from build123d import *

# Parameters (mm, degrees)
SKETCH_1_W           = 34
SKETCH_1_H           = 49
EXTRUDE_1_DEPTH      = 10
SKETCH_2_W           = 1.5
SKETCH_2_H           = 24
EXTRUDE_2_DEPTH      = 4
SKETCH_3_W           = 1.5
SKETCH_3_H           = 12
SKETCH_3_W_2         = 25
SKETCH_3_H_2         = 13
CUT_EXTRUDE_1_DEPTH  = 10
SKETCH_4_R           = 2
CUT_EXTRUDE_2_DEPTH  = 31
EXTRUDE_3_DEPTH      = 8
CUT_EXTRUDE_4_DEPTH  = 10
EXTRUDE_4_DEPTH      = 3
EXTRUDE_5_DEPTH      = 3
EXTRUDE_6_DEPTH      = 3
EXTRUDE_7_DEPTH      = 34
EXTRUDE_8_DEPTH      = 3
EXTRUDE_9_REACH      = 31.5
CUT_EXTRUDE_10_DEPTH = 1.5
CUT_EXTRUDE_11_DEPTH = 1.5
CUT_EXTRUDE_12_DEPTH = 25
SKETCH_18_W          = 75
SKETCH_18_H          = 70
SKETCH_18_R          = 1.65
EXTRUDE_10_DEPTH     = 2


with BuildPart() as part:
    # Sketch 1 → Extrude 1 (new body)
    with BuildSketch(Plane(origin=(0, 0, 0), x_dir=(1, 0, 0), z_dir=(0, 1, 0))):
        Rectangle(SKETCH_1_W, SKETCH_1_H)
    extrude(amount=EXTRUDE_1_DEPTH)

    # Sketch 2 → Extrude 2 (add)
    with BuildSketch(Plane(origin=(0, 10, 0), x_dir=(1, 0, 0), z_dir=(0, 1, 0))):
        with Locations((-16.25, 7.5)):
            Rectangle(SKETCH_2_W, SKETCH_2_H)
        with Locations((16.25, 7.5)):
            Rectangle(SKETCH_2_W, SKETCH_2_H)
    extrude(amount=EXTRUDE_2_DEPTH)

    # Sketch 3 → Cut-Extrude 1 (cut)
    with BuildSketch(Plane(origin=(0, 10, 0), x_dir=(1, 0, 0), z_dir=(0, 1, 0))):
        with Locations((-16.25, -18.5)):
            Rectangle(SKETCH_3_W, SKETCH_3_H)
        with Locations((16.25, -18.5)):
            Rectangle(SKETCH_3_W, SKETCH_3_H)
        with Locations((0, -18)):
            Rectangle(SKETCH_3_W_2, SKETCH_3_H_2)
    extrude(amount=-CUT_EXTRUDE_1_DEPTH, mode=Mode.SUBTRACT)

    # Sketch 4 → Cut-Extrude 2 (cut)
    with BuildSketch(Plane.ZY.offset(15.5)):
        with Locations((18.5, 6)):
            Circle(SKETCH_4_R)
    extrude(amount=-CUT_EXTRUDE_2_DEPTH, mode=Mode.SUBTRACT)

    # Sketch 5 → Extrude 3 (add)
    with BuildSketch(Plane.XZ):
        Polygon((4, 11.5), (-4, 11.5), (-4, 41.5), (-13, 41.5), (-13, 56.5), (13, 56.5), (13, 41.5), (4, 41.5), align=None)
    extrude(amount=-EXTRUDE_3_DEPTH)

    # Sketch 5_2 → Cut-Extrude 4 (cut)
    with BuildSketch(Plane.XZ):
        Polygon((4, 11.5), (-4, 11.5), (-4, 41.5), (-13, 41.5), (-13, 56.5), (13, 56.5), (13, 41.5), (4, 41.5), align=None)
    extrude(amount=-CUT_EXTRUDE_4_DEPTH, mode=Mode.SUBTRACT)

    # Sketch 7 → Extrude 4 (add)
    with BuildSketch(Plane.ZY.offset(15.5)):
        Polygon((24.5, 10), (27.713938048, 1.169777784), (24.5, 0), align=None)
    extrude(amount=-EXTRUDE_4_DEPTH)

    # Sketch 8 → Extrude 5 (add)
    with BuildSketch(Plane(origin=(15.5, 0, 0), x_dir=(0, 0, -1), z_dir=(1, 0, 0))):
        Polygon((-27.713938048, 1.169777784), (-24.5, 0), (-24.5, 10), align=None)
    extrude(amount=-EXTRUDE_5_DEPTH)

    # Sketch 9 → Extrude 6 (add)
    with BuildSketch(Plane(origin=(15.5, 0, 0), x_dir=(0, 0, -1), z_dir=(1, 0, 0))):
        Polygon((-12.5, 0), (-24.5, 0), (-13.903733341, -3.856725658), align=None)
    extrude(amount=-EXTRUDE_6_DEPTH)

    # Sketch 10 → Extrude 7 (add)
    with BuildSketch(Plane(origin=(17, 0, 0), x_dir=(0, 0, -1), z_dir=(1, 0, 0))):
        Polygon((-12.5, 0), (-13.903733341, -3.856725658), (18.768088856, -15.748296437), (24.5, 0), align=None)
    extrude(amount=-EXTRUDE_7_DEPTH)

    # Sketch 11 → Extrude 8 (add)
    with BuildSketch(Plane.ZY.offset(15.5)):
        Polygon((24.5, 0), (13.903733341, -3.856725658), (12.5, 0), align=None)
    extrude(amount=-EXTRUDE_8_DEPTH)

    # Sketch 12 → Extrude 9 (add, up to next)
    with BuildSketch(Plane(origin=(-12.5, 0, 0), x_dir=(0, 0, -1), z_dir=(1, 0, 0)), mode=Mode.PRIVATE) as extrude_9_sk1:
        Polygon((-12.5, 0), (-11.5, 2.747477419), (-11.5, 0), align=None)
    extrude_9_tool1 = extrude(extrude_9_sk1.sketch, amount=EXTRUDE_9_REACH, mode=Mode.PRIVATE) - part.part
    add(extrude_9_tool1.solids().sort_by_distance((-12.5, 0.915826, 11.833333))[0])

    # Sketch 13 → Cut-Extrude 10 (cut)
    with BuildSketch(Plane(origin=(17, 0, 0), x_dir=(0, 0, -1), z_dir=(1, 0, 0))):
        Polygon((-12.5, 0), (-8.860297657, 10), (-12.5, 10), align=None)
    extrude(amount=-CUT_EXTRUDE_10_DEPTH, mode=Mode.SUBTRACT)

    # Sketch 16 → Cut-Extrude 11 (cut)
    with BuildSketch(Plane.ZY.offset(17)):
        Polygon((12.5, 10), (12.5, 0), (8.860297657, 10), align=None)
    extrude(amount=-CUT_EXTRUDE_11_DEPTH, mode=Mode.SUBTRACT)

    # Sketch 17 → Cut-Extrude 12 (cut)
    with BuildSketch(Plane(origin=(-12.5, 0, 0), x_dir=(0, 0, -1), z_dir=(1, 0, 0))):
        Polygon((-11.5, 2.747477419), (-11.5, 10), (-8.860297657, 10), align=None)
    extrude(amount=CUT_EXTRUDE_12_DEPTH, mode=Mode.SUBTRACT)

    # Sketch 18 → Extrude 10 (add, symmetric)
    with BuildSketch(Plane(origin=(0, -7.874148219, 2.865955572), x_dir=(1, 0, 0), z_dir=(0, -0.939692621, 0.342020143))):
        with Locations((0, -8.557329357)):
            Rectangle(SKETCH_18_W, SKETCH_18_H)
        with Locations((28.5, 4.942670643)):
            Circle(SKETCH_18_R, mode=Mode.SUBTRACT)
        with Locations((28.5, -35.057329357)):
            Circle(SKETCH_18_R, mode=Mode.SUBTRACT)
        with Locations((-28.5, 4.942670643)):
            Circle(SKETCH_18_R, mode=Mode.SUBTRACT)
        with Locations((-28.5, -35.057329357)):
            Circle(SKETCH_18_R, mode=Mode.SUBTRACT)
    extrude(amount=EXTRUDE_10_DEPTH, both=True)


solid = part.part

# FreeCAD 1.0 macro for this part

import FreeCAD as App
import Part
import Sketcher
Q = App.Units.Quantity

doc = App.newDocument("Part")
body = doc.addObject("PartDesign::Body", "Body")

# Sketch on XZ plane
sketch1 = doc.addObject("Sketcher::SketchObject", "Sketch")
body.addObject(sketch1)
sketch1.AttachmentSupport = (doc.XZ_Plane, [""])
sketch1.MapMode = "FlatFace"
sketch1.addGeometry(Part.LineSegment(App.Vector(-17, -24, 0), App.Vector(-17, 24, 0)), False)
sketch1.addGeometry(Part.LineSegment(App.Vector(-17, 24, 0), App.Vector(17, 24, 0)), False)
sketch1.addGeometry(Part.LineSegment(App.Vector(17, 24, 0), App.Vector(17, -24, 0)), False)
sketch1.addGeometry(Part.LineSegment(App.Vector(17, -24, 0), App.Vector(-17, -24, 0)), False)
sketch1.addConstraint(Sketcher.Constraint("Coincident", 0, 2, 1, 1))
sketch1.addConstraint(Sketcher.Constraint("Coincident", 1, 2, 2, 1))
sketch1.addConstraint(Sketcher.Constraint("Coincident", 2, 2, 3, 1))
sketch1.addConstraint(Sketcher.Constraint("Coincident", 3, 2, 0, 1))
sketch1.addConstraint(Sketcher.Constraint("Vertical", 0))
sketch1.addConstraint(Sketcher.Constraint("Horizontal", 1))
sketch1.addConstraint(Sketcher.Constraint("Vertical", 2))
sketch1.addConstraint(Sketcher.Constraint("Horizontal", 3))
sketch1.addConstraint(Sketcher.Constraint("Symmetric", 0, 2, 2, 2, -1, 1))
sketch1.addConstraint(Sketcher.Constraint("DistanceX", 1, 1, 1, 2, Q("34 mm")))
sketch1.addConstraint(Sketcher.Constraint("DistanceY", 0, 1, 0, 2, Q("49 mm")))
pad1 = doc.addObject("PartDesign::Pad", "Pad")
body.addObject(pad1)
pad1.Profile = sketch1
pad1.Length = 10
pad1.Reversed = True

# Sketch on XZ plane
sketch2 = doc.addObject("Sketcher::SketchObject", "Sketch001")
body.addObject(sketch2)
sketch2.AttachmentSupport = (doc.XZ_Plane, [""])
sketch2.MapMode = "FlatFace"
sketch2.AttachmentOffset = App.Placement(App.Vector(0, 0, -10), App.Rotation())
sketch2.addGeometry(Part.LineSegment(App.Vector(-17, -19.5, 0), App.Vector(-17, 4.5, 0)), False)
sketch2.addGeometry(Part.LineSegment(App.Vector(-17, 4.5, 0), App.Vector(-15.5, 4.5, 0)), False)
sketch2.addGeometry(Part.LineSegment(App.Vector(-15.5, 4.5, 0), App.Vector(-15.5, -19.5, 0)), False)
sketch2.addGeometry(Part.LineSegment(App.Vector(-15.5, -19.5, 0), App.Vector(-17, -19.5, 0)), False)
sketch2.addGeometry(Part.LineSegment(App.Vector(15.5, -19.5, 0), App.Vector(15.5, 4.5, 0)), False)
sketch2.addGeometry(Part.LineSegment(App.Vector(15.5, 4.5, 0), App.Vector(17, 4.5, 0)), False)
sketch2.addGeometry(Part.LineSegment(App.Vector(17, 4.5, 0), App.Vector(17, -19.5, 0)), False)
sketch2.addGeometry(Part.LineSegment(App.Vector(17, -19.5, 0), App.Vector(15.5, -19.5, 0)), False)
sketch2.addConstraint(Sketcher.Constraint("Coincident", 0, 2, 1, 1))
sketch2.addConstraint(Sketcher.Constraint("Coincident", 1, 2, 2, 1))
sketch2.addConstraint(Sketcher.Constraint("Coincident", 2, 2, 3, 1))
sketch2.addConstraint(Sketcher.Constraint("Coincident", 3, 2, 0, 1))
sketch2.addConstraint(Sketcher.Constraint("Coincident", 4, 2, 5, 1))
sketch2.addConstraint(Sketcher.Constraint("Coincident", 5, 2, 6, 1))
sketch2.addConstraint(Sketcher.Constraint("Coincident", 6, 2, 7, 1))
sketch2.addConstraint(Sketcher.Constraint("Coincident", 7, 2, 4, 1))
sketch2.addConstraint(Sketcher.Constraint("Vertical", 0))
sketch2.addConstraint(Sketcher.Constraint("Horizontal", 1))
sketch2.addConstraint(Sketcher.Constraint("Vertical", 2))
sketch2.addConstraint(Sketcher.Constraint("Horizontal", 3))
sketch2.addConstraint(Sketcher.Constraint("Vertical", 4))
sketch2.addConstraint(Sketcher.Constraint("Horizontal", 5))
sketch2.addConstraint(Sketcher.Constraint("Vertical", 6))
sketch2.addConstraint(Sketcher.Constraint("Horizontal", 7))
sketch2.addConstraint(Sketcher.Constraint("Symmetric", 1, 2, 4, 2, -2))
sketch2.addConstraint(Sketcher.Constraint("Symmetric", 3, 2, 6, 2, -2))
sketch2.addConstraint(Sketcher.Constraint("DistanceY", 0, 1, 0, 2, Q("24 mm")))
sketch2.addConstraint(Sketcher.Constraint("DistanceX", 1, 1, 1, 2, Q("1.5 mm")))
sketch2.addConstraint(Sketcher.Constraint("DistanceX", 0, 2, -1, 1, Q("17 mm")))
sketch2.addConstraint(Sketcher.Constraint("DistanceY", -1, 1, 0, 2, Q("4.5 mm")))
pad2 = doc.addObject("PartDesign::Pad", "Pad001")
body.addObject(pad2)
pad2.Profile = sketch2
pad2.Length = 4
pad2.Reversed = True

# Sketch on XZ plane
sketch3 = doc.addObject("Sketcher::SketchObject", "Sketch002")
body.addObject(sketch3)
sketch3.AttachmentSupport = (doc.XZ_Plane, [""])
sketch3.MapMode = "FlatFace"
sketch3.AttachmentOffset = App.Placement(App.Vector(0, 0, -10), App.Rotation())
sketch3.addGeometry(Part.LineSegment(App.Vector(-17, 12.5, 0), App.Vector(-17, 24.5, 0)), False)
sketch3.addGeometry(Part.LineSegment(App.Vector(-17, 24.5, 0), App.Vector(-15.5, 24.5, 0)), False)
sketch3.addGeometry(Part.LineSegment(App.Vector(-15.5, 24.5, 0), App.Vector(-15.5, 12.5, 0)), False)
sketch3.addGeometry(Part.LineSegment(App.Vector(-15.5, 12.5, 0), App.Vector(-17, 12.5, 0)), False)
sketch3.addGeometry(Part.LineSegment(App.Vector(15.5, 12.5, 0), App.Vector(15.5, 24.5, 0)), False)
sketch3.addGeometry(Part.LineSegment(App.Vector(15.5, 24.5, 0), App.Vector(17, 24.5, 0)), False)
sketch3.addGeometry(Part.LineSegment(App.Vector(17, 24.5, 0), App.Vector(17, 12.5, 0)), False)
sketch3.addGeometry(Part.LineSegment(App.Vector(17, 12.5, 0), App.Vector(15.5, 12.5, 0)), False)
sketch3.addGeometry(Part.LineSegment(App.Vector(-12.5, 11.5, 0), App.Vector(-12.5, 24.5, 0)), False)
sketch3.addGeometry(Part.LineSegment(App.Vector(-12.5, 24.5, 0), App.Vector(12.5, 24.5, 0)), False)
sketch3.addGeometry(Part.LineSegment(App.Vector(12.5, 24.5, 0), App.Vector(12.5, 11.5, 0)), False)
sketch3.addGeometry(Part.LineSegment(App.Vector(12.5, 11.5, 0), App.Vector(-12.5, 11.5, 0)), False)
sketch3.addConstraint(Sketcher.Constraint("Coincident", 0, 2, 1, 1))
sketch3.addConstraint(Sketcher.Constraint("Coincident", 1, 2, 2, 1))
sketch3.addConstraint(Sketcher.Constraint("Coincident", 2, 2, 3, 1))
sketch3.addConstraint(Sketcher.Constraint("Coincident", 3, 2, 0, 1))
sketch3.addConstraint(Sketcher.Constraint("Coincident", 4, 2, 5, 1))
sketch3.addConstraint(Sketcher.Constraint("Coincident", 5, 2, 6, 1))
sketch3.addConstraint(Sketcher.Constraint("Coincident", 6, 2, 7, 1))
sketch3.addConstraint(Sketcher.Constraint("Coincident", 7, 2, 4, 1))
sketch3.addConstraint(Sketcher.Constraint("Coincident", 8, 2, 9, 1))
sketch3.addConstraint(Sketcher.Constraint("Coincident", 9, 2, 10, 1))
sketch3.addConstraint(Sketcher.Constraint("Coincident", 10, 2, 11, 1))
sketch3.addConstraint(Sketcher.Constraint("Coincident", 11, 2, 8, 1))
sketch3.addConstraint(Sketcher.Constraint("Vertical", 0))
sketch3.addConstraint(Sketcher.Constraint("Horizontal", 1))
sketch3.addConstraint(Sketcher.Constraint("Vertical", 2))
sketch3.addConstraint(Sketcher.Constraint("Horizontal", 3))
sketch3.addConstraint(Sketcher.Constraint("Vertical", 4))
sketch3.addConstraint(Sketcher.Constraint("Horizontal", 5))
sketch3.addConstraint(Sketcher.Constraint("Vertical", 6))
sketch3.addConstraint(Sketcher.Constraint("Horizontal", 7))
sketch3.addConstraint(Sketcher.Constraint("Vertical", 8))
sketch3.addConstraint(Sketcher.Constraint("Horizontal", 9))
sketch3.addConstraint(Sketcher.Constraint("Vertical", 10))
sketch3.addConstraint(Sketcher.Constraint("Horizontal", 11))
sketch3.addConstraint(Sketcher.Constraint("Symmetric", 1, 2, 4, 2, -2))
sketch3.addConstraint(Sketcher.Constraint("Symmetric", 3, 2, 6, 2, -2))
sketch3.addConstraint(Sketcher.Constraint("Horizontal", 5, 2, 8, 2))
sketch3.addConstraint(Sketcher.Constraint("DistanceX", 9, 1, 9, 2, Q("25 mm")))
sketch3.addConstraint(Sketcher.Constraint("DistanceY", 0, 1, 0, 2, Q("12 mm")))
sketch3.addConstraint(Sketcher.Constraint("DistanceY", 8, 1, 8, 2, Q("13 mm")))
sketch3.addConstraint(Sketcher.Constraint("DistanceX", 1, 1, 1, 2, Q("1.5 mm")))
sketch3.addConstraint(Sketcher.Constraint("DistanceX", 0, 2, -1, 1, Q("17 mm")))
sketch3.addConstraint(Sketcher.Constraint("DistanceX", 1, 2, 8, 2, Q("3 mm")))
sketch3.addConstraint(Sketcher.Constraint("DistanceY", -1, 1, 0, 2, Q("24.5 mm")))
pocket1 = doc.addObject("PartDesign::Pocket", "Pocket")
body.addObject(pocket1)
pocket1.Profile = sketch3
pocket1.Length = 10
pocket1.Reversed = True

# Sketch on YZ plane
sketch4 = doc.addObject("Sketcher::SketchObject", "Sketch003")
body.addObject(sketch4)
sketch4.AttachmentSupport = (doc.YZ_Plane, [""])
sketch4.MapMode = "FlatFace"
sketch4.AttachmentOffset = App.Placement(App.Vector(0, 0, -15.5), App.Rotation())
sketch4.addGeometry(Part.Circle(App.Vector(6, 18.5, 0), App.Vector(0, 0, 1), 2), False)
sketch4.addConstraint(Sketcher.Constraint("Diameter", 0, Q("4 mm")))
sketch4.addConstraint(Sketcher.Constraint("DistanceX", -1, 1, 0, 3, Q("6 mm")))
sketch4.addConstraint(Sketcher.Constraint("DistanceY", -1, 1, 0, 3, Q("18.5 mm")))
pocket2 = doc.addObject("PartDesign::Pocket", "Pocket001")
body.addObject(pocket2)
pocket2.Profile = sketch4
pocket2.Length = 31
pocket2.Reversed = True

# Sketch on XZ plane
sketch5 = doc.addObject("Sketcher::SketchObject", "Sketch004")
body.addObject(sketch5)
sketch5.AttachmentSupport = (doc.XZ_Plane, [""])
sketch5.MapMode = "FlatFace"
sketch5.addGeometry(Part.LineSegment(App.Vector(-4, 12, 0), App.Vector(4, 12, 0)), False)
sketch5.addGeometry(Part.LineSegment(App.Vector(4, 12, 0), App.Vector(4, 42, 0)), False)
sketch5.addGeometry(Part.LineSegment(App.Vector(4, 42, 0), App.Vector(13, 42, 0)), False)
sketch5.addGeometry(Part.LineSegment(App.Vector(13, 42, 0), App.Vector(13, 56, 0)), False)
sketch5.addGeometry(Part.LineSegment(App.Vector(13, 56, 0), App.Vector(-13, 56, 0)), False)
sketch5.addGeometry(Part.LineSegment(App.Vector(-13, 56, 0), App.Vector(-13, 42, 0)), False)
sketch5.addGeometry(Part.LineSegment(App.Vector(-13, 42, 0), App.Vector(-4, 42, 0)), False)
sketch5.addGeometry(Part.LineSegment(App.Vector(-4, 42, 0), App.Vector(-4, 12, 0)), False)
sketch5.addConstraint(Sketcher.Constraint("Coincident", 0, 2, 1, 1))
sketch5.addConstraint(Sketcher.Constraint("Coincident", 1, 2, 2, 1))
sketch5.addConstraint(Sketcher.Constraint("Coincident", 2, 2, 3, 1))
sketch5.addConstraint(Sketcher.Constraint("Coincident", 3, 2, 4, 1))
sketch5.addConstraint(Sketcher.Constraint("Coincident", 4, 2, 5, 1))
sketch5.addConstraint(Sketcher.Constraint("Coincident", 5, 2, 6, 1))
sketch5.addConstraint(Sketcher.Constraint("Coincident", 6, 2, 7, 1))
sketch5.addConstraint(Sketcher.Constraint("Coincident", 7, 2, 0, 1))
sketch5.addConstraint(Sketcher.Constraint("Horizontal", 0))
sketch5.addConstraint(Sketcher.Constraint("Vertical", 1))
sketch5.addConstraint(Sketcher.Constraint("Horizontal", 2))
sketch5.addConstraint(Sketcher.Constraint("Vertical", 3))
sketch5.addConstraint(Sketcher.Constraint("Horizontal", 4))
sketch5.addConstraint(Sketcher.Constraint("Vertical", 5))
sketch5.addConstraint(Sketcher.Constraint("Horizontal", 6))
sketch5.addConstraint(Sketcher.Constraint("Vertical", 7))
sketch5.addConstraint(Sketcher.Constraint("Symmetric", 2, 2, 5, 2, -2))
sketch5.addConstraint(Sketcher.Constraint("Equal", 2, 6))
sketch5.addConstraint(Sketcher.Constraint("DistanceX", 0, 1, 0, 2, Q("8 mm")))
sketch5.addConstraint(Sketcher.Constraint("DistanceX", 2, 1, 2, 2, Q("9 mm")))
sketch5.addConstraint(Sketcher.Constraint("DistanceY", 1, 1, 1, 2, Q("30 mm")))
sketch5.addConstraint(Sketcher.Constraint("DistanceY", 3, 1, 3, 2, Q("15 mm")))
sketch5.addConstraint(Sketcher.Constraint("DistanceY", -1, 1, 0, 2, Q("11.5 mm")))
pad3 = doc.addObject("PartDesign::Pad", "Pad002")
body.addObject(pad3)
pad3.Profile = sketch5
pad3.Length = 8
pad3.Reversed = True

# Sketch on XZ plane
sketch6 = doc.addObject("Sketcher::SketchObject", "Sketch005")
body.addObject(sketch6)
sketch6.AttachmentSupport = (doc.XZ_Plane, [""])
sketch6.MapMode = "FlatFace"
sketch6.addGeometry(Part.LineSegment(App.Vector(-4, 12, 0), App.Vector(4, 12, 0)), False)
sketch6.addGeometry(Part.LineSegment(App.Vector(4, 12, 0), App.Vector(4, 42, 0)), False)
sketch6.addGeometry(Part.LineSegment(App.Vector(4, 42, 0), App.Vector(13, 42, 0)), False)
sketch6.addGeometry(Part.LineSegment(App.Vector(13, 42, 0), App.Vector(13, 56, 0)), False)
sketch6.addGeometry(Part.LineSegment(App.Vector(13, 56, 0), App.Vector(-13, 56, 0)), False)
sketch6.addGeometry(Part.LineSegment(App.Vector(-13, 56, 0), App.Vector(-13, 42, 0)), False)
sketch6.addGeometry(Part.LineSegment(App.Vector(-13, 42, 0), App.Vector(-4, 42, 0)), False)
sketch6.addGeometry(Part.LineSegment(App.Vector(-4, 42, 0), App.Vector(-4, 12, 0)), False)
sketch6.addConstraint(Sketcher.Constraint("Coincident", 0, 2, 1, 1))
sketch6.addConstraint(Sketcher.Constraint("Coincident", 1, 2, 2, 1))
sketch6.addConstraint(Sketcher.Constraint("Coincident", 2, 2, 3, 1))
sketch6.addConstraint(Sketcher.Constraint("Coincident", 3, 2, 4, 1))
sketch6.addConstraint(Sketcher.Constraint("Coincident", 4, 2, 5, 1))
sketch6.addConstraint(Sketcher.Constraint("Coincident", 5, 2, 6, 1))
sketch6.addConstraint(Sketcher.Constraint("Coincident", 6, 2, 7, 1))
sketch6.addConstraint(Sketcher.Constraint("Coincident", 7, 2, 0, 1))
sketch6.addConstraint(Sketcher.Constraint("Horizontal", 0))
sketch6.addConstraint(Sketcher.Constraint("Vertical", 1))
sketch6.addConstraint(Sketcher.Constraint("Horizontal", 2))
sketch6.addConstraint(Sketcher.Constraint("Vertical", 3))
sketch6.addConstraint(Sketcher.Constraint("Horizontal", 4))
sketch6.addConstraint(Sketcher.Constraint("Vertical", 5))
sketch6.addConstraint(Sketcher.Constraint("Horizontal", 6))
sketch6.addConstraint(Sketcher.Constraint("Vertical", 7))
sketch6.addConstraint(Sketcher.Constraint("Symmetric", 2, 2, 5, 2, -2))
sketch6.addConstraint(Sketcher.Constraint("Equal", 2, 6))
sketch6.addConstraint(Sketcher.Constraint("DistanceX", 0, 1, 0, 2, Q("8 mm")))
sketch6.addConstraint(Sketcher.Constraint("DistanceX", 2, 1, 2, 2, Q("9 mm")))
sketch6.addConstraint(Sketcher.Constraint("DistanceY", 1, 1, 1, 2, Q("30 mm")))
sketch6.addConstraint(Sketcher.Constraint("DistanceY", 3, 1, 3, 2, Q("15 mm")))
sketch6.addConstraint(Sketcher.Constraint("DistanceY", -1, 1, 0, 2, Q("11.5 mm")))
pocket3 = doc.addObject("PartDesign::Pocket", "Pocket002")
body.addObject(pocket3)
pocket3.Profile = sketch6
pocket3.Length = 10

# Sketch on YZ plane
sketch7 = doc.addObject("Sketcher::SketchObject", "Sketch006")
body.addObject(sketch7)
sketch7.AttachmentSupport = (doc.YZ_Plane, [""])
sketch7.MapMode = "FlatFace"
sketch7.AttachmentOffset = App.Placement(App.Vector(0, 0, -15.5), App.Rotation())
sketch7.addGeometry(Part.LineSegment(App.Vector(1.2, 27.7, 0), App.Vector(10, 24.5, 0)), False)
sketch7.addGeometry(Part.LineSegment(App.Vector(10, 24.5, 0), App.Vector(0, 24.5, 0)), False)
sketch7.addGeometry(Part.LineSegment(App.Vector(0, 24.5, 0), App.Vector(1.2, 27.7, 0)), False)
sketch7.addConstraint(Sketcher.Constraint("Coincident", 0, 2, 1, 1))
sketch7.addConstraint(Sketcher.Constraint("Coincident", 1, 2, 2, 1))
sketch7.addConstraint(Sketcher.Constraint("Coincident", 2, 2, 0, 1))
sketch7.addConstraint(Sketcher.Constraint("Horizontal", 1))
sketch7.addConstraint(Sketcher.Constraint("PointOnObject", 1, 2, -2))
sketch7.addConstraint(Sketcher.Constraint("Perpendicular", 0, 2))
sketch7.addConstraint(Sketcher.Constraint("DistanceX", 1, 2, 1, 1, Q("10 mm")))
sketch7.addConstraint(Sketcher.Constraint("Angle", 0, Q("-20 deg")))
sketch7.addConstraint(Sketcher.Constraint("DistanceY", -1, 1, 0, 2, Q("24.5 mm")))
pad4 = doc.addObject("PartDesign::Pad", "Pad003")
body.addObject(pad4)
pad4.Profile = sketch7
pad4.Length = 3

# Sketch on YZ plane
sketch8 = doc.addObject("Sketcher::SketchObject", "Sketch007")
body.addObject(sketch8)
sketch8.AttachmentSupport = (doc.YZ_Plane, [""])
sketch8.MapMode = "FlatFace"
sketch8.AttachmentOffset = App.Placement(App.Vector(0, 0, 15.5), App.Rotation())
sketch8.addGeometry(Part.LineSegment(App.Vector(1.2, 27.7, 0), App.Vector(0, 24.5, 0)), False)
sketch8.addGeometry(Part.LineSegment(App.Vector(0, 24.5, 0), App.Vector(10, 24.5, 0)), False)
sketch8.addGeometry(Part.LineSegment(App.Vector(10, 24.5, 0), App.Vector(1.2, 27.7, 0)), False)
sketch8.addConstraint(Sketcher.Constraint("Coincident", 0, 2, 1, 1))
sketch8.addConstraint(Sketcher.Constraint("Coincident", 1, 2, 2, 1))
sketch8.addConstraint(Sketcher.Constraint("Coincident", 2, 2, 0, 1))
sketch8.addConstraint(Sketcher.Constraint("Horizontal", 1))
sketch8.addConstraint(Sketcher.Constraint("PointOnObject", 0, 2, -2))
sketch8.addConstraint(Sketcher.Constraint("Perpendicular", 0, 2))
sketch8.addConstraint(Sketcher.Constraint("DistanceX", 1, 1, 1, 2, Q("10 mm")))
sketch8.addConstraint(Sketcher.Constraint("Angle", 0, Q("-110 deg")))
sketch8.addConstraint(Sketcher.Constraint("DistanceY", -1, 1, 0, 2, Q("24.5 mm")))
pad5 = doc.addObject("PartDesign::Pad", "Pad004")
body.addObject(pad5)
pad5.Profile = sketch8
pad5.Length = 3
pad5.Reversed = True

# Sketch on YZ plane
sketch9 = doc.addObject("Sketcher::SketchObject", "Sketch008")
body.addObject(sketch9)
sketch9.AttachmentSupport = (doc.YZ_Plane, [""])
sketch9.MapMode = "FlatFace"
sketch9.AttachmentOffset = App.Placement(App.Vector(0, 0, 15.5), App.Rotation())
sketch9.addGeometry(Part.LineSegment(App.Vector(0, 12.5, 0), App.Vector(0, 24.5, 0)), False)
sketch9.addGeometry(Part.LineSegment(App.Vector(0, 24.5, 0), App.Vector(-3.9, 13.9, 0)), False)
sketch9.addGeometry(Part.LineSegment(App.Vector(-3.9, 13.9, 0), App.Vector(0, 12.5, 0)), False)
sketch9.addConstraint(Sketcher.Constraint("Coincident", 0, 2, 1, 1))
sketch9.addConstraint(Sketcher.Constraint("Coincident", 1, 2, 2, 1))
sketch9.addConstraint(Sketcher.Constraint("Coincident", 2, 2, 0, 1))
sketch9.addConstraint(Sketcher.Constraint("Vertical", 0))
sketch9.addConstraint(Sketcher.Constraint("PointOnObject", 0, 2, -2))
sketch9.addConstraint(Sketcher.Constraint("Perpendicular", 1, 2))
sketch9.addConstraint(Sketcher.Constraint("DistanceY", 0, 1, 0, 2, Q("12 mm")))
sketch9.addConstraint(Sketcher.Constraint("Angle", 1, Q("-110 deg")))
sketch9.addConstraint(Sketcher.Constraint("DistanceY", -1, 1, 0, 2, Q("24.5 mm")))
pad6 = doc.addObject("PartDesign::Pad", "Pad005")
body.addObject(pad6)
pad6.Profile = sketch9
pad6.Length = 3
pad6.Reversed = True

# Sketch on YZ plane
sketch10 = doc.addObject("Sketcher::SketchObject", "Sketch009")
body.addObject(sketch10)
sketch10.AttachmentSupport = (doc.YZ_Plane, [""])
sketch10.MapMode = "FlatFace"
sketch10.AttachmentOffset = App.Placement(App.Vector(0, 0, 17), App.Rotation())
sketch10.addGeometry(Part.LineSegment(App.Vector(0, 12.5, 0), App.Vector(-3.9, 13.9, 0)), False)
sketch10.addGeometry(Part.LineSegment(App.Vector(-3.9, 13.9, 0), App.Vector(-15.7, -18.8, 0)), False)
sketch10.addGeometry(Part.LineSegment(App.Vector(-15.7, -18.8, 0), App.Vector(0, -24.5, 0)), False)
sketch10.addGeometry(Part.LineSegment(App.Vector(0, -24.5, 0), App.Vector(0, 12.5, 0)), False)
sketch10.addConstraint(Sketcher.Constraint("Coincident", 0, 2, 1, 1))
sketch10.addConstraint(Sketcher.Constraint("Coincident", 1, 2, 2, 1))
sketch10.addConstraint(Sketcher.Constraint("Coincident", 2, 2, 3, 1))
sketch10.addConstraint(Sketcher.Constraint("Coincident", 3, 2, 0, 1))
sketch10.addConstraint(Sketcher.Constraint("Vertical", 3))
sketch10.addConstraint(Sketcher.Constraint("PointOnObject", 2, 2, -2))
sketch10.addConstraint(Sketcher.Constraint("Perpendicular", 0, 1))
sketch10.addConstraint(Sketcher.Constraint("Perpendicular", 1, 2))
sketch10.addConstraint(Sketcher.Constraint("DistanceY", 3, 1, 3, 2, Q("37 mm")))
sketch10.addConstraint(Sketcher.Constraint("Angle", 0, Q("160 deg")))
sketch10.addConstraint(Sketcher.Constraint("DistanceY", 2, 2, -1, 1, Q("24.5 mm")))
sketch10.addConstraint(Sketcher.Constraint("Distance", 0, Q("4.104242 mm")))
pad7 = doc.addObject("PartDesign::Pad", "Pad006")
body.addObject(pad7)
pad7.Profile = sketch10
pad7.Length = 34
pad7.Reversed = True

# Sketch on YZ plane
sketch11 = doc.addObject("Sketcher::SketchObject", "Sketch010")
body.addObject(sketch11)
sketch11.AttachmentSupport = (doc.YZ_Plane, [""])
sketch11.MapMode = "FlatFace"
sketch11.AttachmentOffset = App.Placement(App.Vector(0, 0, -15.5), App.Rotation())
sketch11.addGeometry(Part.LineSegment(App.Vector(-3.9, 13.9, 0), App.Vector(0, 24.5, 0)), False)
sketch11.addGeometry(Part.LineSegment(App.Vector(0, 24.5, 0), App.Vector(0, 12.5, 0)), False)
sketch11.addGeometry(Part.LineSegment(App.Vector(0, 12.5, 0), App.Vector(-3.9, 13.9, 0)), False)
sketch11.addConstraint(Sketcher.Constraint("Coincident", 0, 2, 1, 1))
sketch11.addConstraint(Sketcher.Constraint("Coincident", 1, 2, 2, 1))
sketch11.addConstraint(Sketcher.Constraint("Coincident", 2, 2, 0, 1))
sketch11.addConstraint(Sketcher.Constraint("Vertical", 1))
sketch11.addConstraint(Sketcher.Constraint("PointOnObject", 0, 2, -2))
sketch11.addConstraint(Sketcher.Constraint("Perpendicular", 0, 2))
sketch11.addConstraint(Sketcher.Constraint("DistanceY", 1, 2, 1, 1, Q("12 mm")))
sketch11.addConstraint(Sketcher.Constraint("Angle", 0, Q("70 deg")))
sketch11.addConstraint(Sketcher.Constraint("DistanceY", -1, 1, 0, 2, Q("24.5 mm")))
pad8 = doc.addObject("PartDesign::Pad", "Pad007")
body.addObject(pad8)
pad8.Profile = sketch11
pad8.Length = 3

# Sketch on YZ plane
sketch12 = doc.addObject("Sketcher::SketchObject", "Sketch011")
body.addObject(sketch12)
sketch12.AttachmentSupport = (doc.YZ_Plane, [""])
sketch12.MapMode = "FlatFace"
sketch12.AttachmentOffset = App.Placement(App.Vector(0, 0, -12.5), App.Rotation())
sketch12.addGeometry(Part.LineSegment(App.Vector(2.7, 11.5, 0), App.Vector(0, 12.5, 0)), False)
sketch12.addGeometry(Part.LineSegment(App.Vector(0, 12.5, 0), App.Vector(0, 11.5, 0)), False)
sketch12.addGeometry(Part.LineSegment(App.Vector(0, 11.5, 0), App.Vector(2.7, 11.5, 0)), False)
sketch12.addConstraint(Sketcher.Constraint("Coincident", 0, 2, 1, 1))
sketch12.addConstraint(Sketcher.Constraint("Coincident", 1, 2, 2, 1))
sketch12.addConstraint(Sketcher.Constraint("Coincident", 2, 2, 0, 1))
sketch12.addConstraint(Sketcher.Constraint("Vertical", 1))
sketch12.addConstraint(Sketcher.Constraint("Horizontal", 2))
sketch12.addConstraint(Sketcher.Constraint("PointOnObject", 0, 2, -2))
sketch12.addConstraint(Sketcher.Constraint("DistanceY", 1, 2, 1, 1, Q("1 mm")))
sketch12.addConstraint(Sketcher.Constraint("Angle", 0, Q("160 deg")))
sketch12.addConstraint(Sketcher.Constraint("DistanceY", -1, 1, 0, 2, Q("12.5 mm")))
pad9 = doc.addObject("PartDesign::Pad", "Pad008")
body.addObject(pad9)
pad9.Profile = sketch12
pad9.Type = "UpToFirst"

# Sketch on YZ plane
sketch13 = doc.addObject("Sketcher::SketchObject", "Sketch012")
body.addObject(sketch13)
sketch13.AttachmentSupport = (doc.YZ_Plane, [""])
sketch13.MapMode = "FlatFace"
sketch13.AttachmentOffset = App.Placement(App.Vector(0, 0, 17), App.Rotation())
sketch13.addGeometry(Part.LineSegment(App.Vector(0, 12.5, 0), App.Vector(10, 8.9, 0)), False)
sketch13.addGeometry(Part.LineSegment(App.Vector(10, 8.9, 0), App.Vector(10, 12.5, 0)), False)
sketch13.addGeometry(Part.LineSegment(App.Vector(10, 12.5, 0), App.Vector(0, 12.5, 0)), False)
sketch13.addConstraint(Sketcher.Constraint("Coincident", 0, 2, 1, 1))
sketch13.addConstraint(Sketcher.Constraint("Coincident", 1, 2, 2, 1))
sketch13.addConstraint(Sketcher.Constraint("Coincident", 2, 2, 0, 1))
sketch13.addConstraint(Sketcher.Constraint("Vertical", 1))
sketch13.addConstraint(Sketcher.Constraint("Horizontal", 2))
sketch13.addConstraint(Sketcher.Constraint("PointOnObject", 2, 2, -2))
sketch13.addConstraint(Sketcher.Constraint("DistanceX", 2, 2, 2, 1, Q("10 mm")))
sketch13.addConstraint(Sketcher.Constraint("Angle", 0, Q("-20 deg")))
sketch13.addConstraint(Sketcher.Constraint("DistanceY", -1, 1, 1, 2, Q("12.5 mm")))
pocket4 = doc.addObject("PartDesign::Pocket", "Pocket003")
body.addObject(pocket4)
pocket4.Profile = sketch13
pocket4.Length = 1.5

# Sketch on YZ plane
sketch14 = doc.addObject("Sketcher::SketchObject", "Sketch013")
body.addObject(sketch14)
sketch14.AttachmentSupport = (doc.YZ_Plane, [""])
sketch14.MapMode = "FlatFace"
sketch14.AttachmentOffset = App.Placement(App.Vector(0, 0, -17), App.Rotation())
sketch14.addGeometry(Part.LineSegment(App.Vector(0, 12.5, 0), App.Vector(10, 12.5, 0)), False)
sketch14.addGeometry(Part.LineSegment(App.Vector(10, 12.5, 0), App.Vector(10, 8.9, 0)), False)
sketch14.addGeometry(Part.LineSegment(App.Vector(10, 8.9, 0), App.Vector(0, 12.5, 0)), False)
sketch14.addConstraint(Sketcher.Constraint("Coincident", 0, 2, 1, 1))
sketch14.addConstraint(Sketcher.Constraint("Coincident", 1, 2, 2, 1))
sketch14.addConstraint(Sketcher.Constraint("Coincident", 2, 2, 0, 1))
sketch14.addConstraint(Sketcher.Constraint("Horizontal", 0))
sketch14.addConstraint(Sketcher.Constraint("Vertical", 1))
sketch14.addConstraint(Sketcher.Constraint("PointOnObject", 2, 2, -2))
sketch14.addConstraint(Sketcher.Constraint("DistanceX", 0, 1, 0, 2, Q("10 mm")))
sketch14.addConstraint(Sketcher.Constraint("Angle", 2, Q("160 deg")))
sketch14.addConstraint(Sketcher.Constraint("DistanceY", -1, 1, 0, 2, Q("12.5 mm")))
pocket5 = doc.addObject("PartDesign::Pocket", "Pocket004")
body.addObject(pocket5)
pocket5.Profile = sketch14
pocket5.Length = 1.5
pocket5.Reversed = True

# Sketch on YZ plane
sketch15 = doc.addObject("Sketcher::SketchObject", "Sketch014")
body.addObject(sketch15)
sketch15.AttachmentSupport = (doc.YZ_Plane, [""])
sketch15.MapMode = "FlatFace"
sketch15.AttachmentOffset = App.Placement(App.Vector(0, 0, -12.5), App.Rotation())
sketch15.addGeometry(Part.LineSegment(App.Vector(10, 11.5, 0), App.Vector(2.7, 11.5, 0)), False)
sketch15.addGeometry(Part.LineSegment(App.Vector(2.7, 11.5, 0), App.Vector(10, 8.9, 0)), False)
sketch15.addGeometry(Part.LineSegment(App.Vector(10, 8.9, 0), App.Vector(10, 11.5, 0)), False)
sketch15.addConstraint(Sketcher.Constraint("Coincident", 0, 2, 1, 1))
sketch15.addConstraint(Sketcher.Constraint("Coincident", 1, 2, 2, 1))
sketch15.addConstraint(Sketcher.Constraint("Coincident", 2, 2, 0, 1))
sketch15.addConstraint(Sketcher.Constraint("Horizontal", 0))
sketch15.addConstraint(Sketcher.Constraint("Vertical", 2))
sketch15.addConstraint(Sketcher.Constraint("Angle", 1, Q("-20 deg")))
sketch15.addConstraint(Sketcher.Constraint("DistanceX", -1, 1, 1, 2, Q("10 mm")))
sketch15.addConstraint(Sketcher.Constraint("DistanceY", -1, 1, 0, 2, Q("11.5 mm")))
sketch15.addConstraint(Sketcher.Constraint("DistanceX", 0, 2, 0, 1, Q("7.252523 mm")))
pocket6 = doc.addObject("PartDesign::Pocket", "Pocket005")
body.addObject(pocket6)
pocket6.Profile = sketch15
pocket6.Length = 25
pocket6.Reversed = True

# Sketch on an angled plane
sketch16 = doc.addObject("Sketcher::SketchObject", "Sketch015")
body.addObject(sketch16)
sketch16.Placement = App.Placement(App.Vector(0, -7.874148, 2.865956), App.Rotation(App.Vector(1, 0, 0), App.Vector(0, 0.342020143, 0.939692621), App.Vector(0, -0.939692621, 0.342020143), "ZXY"))
sketch16.addGeometry(Part.LineSegment(App.Vector(-37.5, 26.4, 0), App.Vector(-37.5, -43.6, 0)), False)
sketch16.addGeometry(Part.LineSegment(App.Vector(-37.5, -43.6, 0), App.Vector(37.5, -43.6, 0)), False)
sketch16.addGeometry(Part.LineSegment(App.Vector(37.5, -43.6, 0), App.Vector(37.5, 26.4, 0)), False)
sketch16.addGeometry(Part.LineSegment(App.Vector(37.5, 26.4, 0), App.Vector(-37.5, 26.4, 0)), False)
sketch16.addGeometry(Part.Circle(App.Vector(-28.5, -35.1, 0), App.Vector(0, 0, 1), 1.6), False)
sketch16.addGeometry(Part.Circle(App.Vector(28.5, -35.1, 0), App.Vector(0, 0, 1), 1.6), False)
sketch16.addGeometry(Part.Circle(App.Vector(-28.5, 4.9, 0), App.Vector(0, 0, 1), 1.6), False)
sketch16.addGeometry(Part.Circle(App.Vector(28.5, 4.9, 0), App.Vector(0, 0, 1), 1.6), False)
sketch16.addConstraint(Sketcher.Constraint("Coincident", 0, 2, 1, 1))
sketch16.addConstraint(Sketcher.Constraint("Coincident", 1, 2, 2, 1))
sketch16.addConstraint(Sketcher.Constraint("Coincident", 2, 2, 3, 1))
sketch16.addConstraint(Sketcher.Constraint("Coincident", 3, 2, 0, 1))
sketch16.addConstraint(Sketcher.Constraint("Vertical", 0))
sketch16.addConstraint(Sketcher.Constraint("Horizontal", 1))
sketch16.addConstraint(Sketcher.Constraint("Vertical", 2))
sketch16.addConstraint(Sketcher.Constraint("Horizontal", 3))
sketch16.addConstraint(Sketcher.Constraint("Equal", 4, 5))
sketch16.addConstraint(Sketcher.Constraint("Equal", 5, 6))
sketch16.addConstraint(Sketcher.Constraint("Equal", 6, 7))
sketch16.addConstraint(Sketcher.Constraint("Symmetric", 4, 3, 5, 3, -2))
sketch16.addConstraint(Sketcher.Constraint("Symmetric", 6, 3, 7, 3, -2))
sketch16.addConstraint(Sketcher.Constraint("Vertical", 4, 3, 6, 3))
sketch16.addConstraint(Sketcher.Constraint("Diameter", 4, Q("3.3 mm")))
sketch16.addConstraint(Sketcher.Constraint("DistanceX", 1, 1, 1, 2, Q("75 mm")))
sketch16.addConstraint(Sketcher.Constraint("DistanceY", 0, 2, 0, 1, Q("70 mm")))
sketch16.addConstraint(Sketcher.Constraint("DistanceX", 4, 3, 5, 3, Q("57 mm")))
sketch16.addConstraint(Sketcher.Constraint("DistanceY", 4, 3, 6, 3, Q("40 mm")))
sketch16.addConstraint(Sketcher.Constraint("DistanceX", 0, 2, 4, 3, Q("9 mm")))
sketch16.addConstraint(Sketcher.Constraint("DistanceY", 0, 2, 4, 3, Q("8.5 mm")))
sketch16.addConstraint(Sketcher.Constraint("DistanceY", 4, 3, -1, 1, Q("35.057329 mm")))
pad10 = doc.addObject("PartDesign::Pad", "Pad009")
body.addObject(pad10)
pad10.Profile = sketch16
pad10.Length = 4
pad10.Midplane = True

doc.recompute()
